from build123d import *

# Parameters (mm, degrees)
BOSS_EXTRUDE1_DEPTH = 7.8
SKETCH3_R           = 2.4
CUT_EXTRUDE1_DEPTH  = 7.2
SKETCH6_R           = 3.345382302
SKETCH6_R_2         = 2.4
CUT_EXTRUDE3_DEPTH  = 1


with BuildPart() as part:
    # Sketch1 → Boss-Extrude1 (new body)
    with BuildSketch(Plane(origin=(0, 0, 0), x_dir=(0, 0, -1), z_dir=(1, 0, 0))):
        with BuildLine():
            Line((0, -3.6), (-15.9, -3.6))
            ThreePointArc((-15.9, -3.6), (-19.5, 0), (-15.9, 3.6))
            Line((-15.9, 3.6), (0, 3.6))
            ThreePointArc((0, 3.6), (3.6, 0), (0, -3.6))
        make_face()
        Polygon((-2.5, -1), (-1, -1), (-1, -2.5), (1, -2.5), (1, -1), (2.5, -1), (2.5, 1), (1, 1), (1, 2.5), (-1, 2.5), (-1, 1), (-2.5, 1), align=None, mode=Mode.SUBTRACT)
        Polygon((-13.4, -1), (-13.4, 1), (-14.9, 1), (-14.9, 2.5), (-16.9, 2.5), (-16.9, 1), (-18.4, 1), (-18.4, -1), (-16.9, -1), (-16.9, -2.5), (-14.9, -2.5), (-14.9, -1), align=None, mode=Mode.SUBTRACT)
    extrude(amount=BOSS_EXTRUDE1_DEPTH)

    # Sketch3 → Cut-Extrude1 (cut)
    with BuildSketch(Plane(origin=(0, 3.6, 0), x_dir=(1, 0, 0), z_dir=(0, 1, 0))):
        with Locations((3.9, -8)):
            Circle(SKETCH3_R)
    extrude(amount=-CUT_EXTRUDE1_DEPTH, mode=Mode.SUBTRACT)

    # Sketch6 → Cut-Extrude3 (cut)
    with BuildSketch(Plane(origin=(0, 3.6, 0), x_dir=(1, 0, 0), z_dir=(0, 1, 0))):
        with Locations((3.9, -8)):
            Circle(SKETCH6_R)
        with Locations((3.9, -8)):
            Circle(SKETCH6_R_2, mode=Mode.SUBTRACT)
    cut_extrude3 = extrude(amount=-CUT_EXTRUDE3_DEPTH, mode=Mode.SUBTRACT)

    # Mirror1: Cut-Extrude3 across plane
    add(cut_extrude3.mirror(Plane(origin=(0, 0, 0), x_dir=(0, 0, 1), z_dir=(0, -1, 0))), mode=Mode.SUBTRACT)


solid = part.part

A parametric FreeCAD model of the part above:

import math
import FreeCAD as App
import Part
import Sketcher


def add_polygon(sketch, points):
    """Adds a closed chain of lines whose ends are joined by coincident constraints."""
    first, n = sketch.GeometryCount, len(points)
    for a, b in zip(points, points[1:] + points[:1]):
        sketch.addGeometry(Part.LineSegment(App.Vector(*a, 0), App.Vector(*b, 0)), False)
    for i in range(n):
        sketch.addConstraint(Sketcher.Constraint("Coincident", first + i, 2, first + (i + 1) % n, 1))

doc = App.newDocument("Part")
body = doc.addObject("PartDesign::Body", "Body")

# Sketch on YZ plane
sketch1 = body.newObject("Sketcher::SketchObject", "Sketch")
sketch1.AttachmentSupport = (doc.getObject("YZ_Plane"), [""])
sketch1.MapMode = "FlatFace"
sketch1.addGeometry(Part.LineSegment(App.Vector(-3.6, 15.9, 0), App.Vector(-3.6, 0, 0)), False)  # 0
sketch1.addGeometry(Part.ArcOfCircle(Part.Circle(App.Vector(0, 0, 0), App.Vector(0, 0, 1), 3.6), math.radians(180), math.radians(360)), False)  # 1
sketch1.addGeometry(Part.LineSegment(App.Vector(3.6, 0, 0), App.Vector(3.6, 15.9, 0)), False)  # 2
sketch1.addGeometry(Part.ArcOfCircle(Part.Circle(App.Vector(0, 15.9, 0), App.Vector(0, 0, 1), 3.6), math.radians(0), math.radians(180)), False)  # 3
add_polygon(sketch1, [(-1, 2.5), (1, 2.5), (1, 1), (2.5, 1), (2.5, -1), (1, -1), (1, -2.5), (-1, -2.5), (-1, -1), (-2.5, -1), (-2.5, 1), (-1, 1)])  # lines 4-15
add_polygon(sketch1, [(-1, 13.4), (-1, 14.9), (-2.5, 14.9), (-2.5, 16.9), (-1, 16.9), (-1, 18.4), (1, 18.4), (1, 16.9), (2.5, 16.9), (2.5, 14.9), (1, 14.9), (1, 13.4)])  # lines 16-27
sketch1.addConstraint(Sketcher.Constraint("Tangent", 0, 2, 1, 1))
sketch1.addConstraint(Sketcher.Constraint("Tangent", 1, 2, 2, 1))
sketch1.addConstraint(Sketcher.Constraint("Tangent", 2, 2, 3, 1))
sketch1.addConstraint(Sketcher.Constraint("Tangent", 3, 2, 0, 1))
sketch1.addConstraint(Sketcher.Constraint("Vertical", 0))
sketch1.addConstraint(Sketcher.Constraint("Vertical", 2))
sketch1.addConstraint(Sketcher.Constraint("Horizontal", 4))
sketch1.addConstraint(Sketcher.Constraint("Vertical", 5))
sketch1.addConstraint(Sketcher.Constraint("Horizontal", 6))
sketch1.addConstraint(Sketcher.Constraint("Vertical", 7))
sketch1.addConstraint(Sketcher.Constraint("Horizontal", 8))
sketch1.addConstraint(Sketcher.Constraint("Vertical", 9))
sketch1.addConstraint(Sketcher.Constraint("Horizontal", 10))
sketch1.addConstraint(Sketcher.Constraint("Vertical", 11))
sketch1.addConstraint(Sketcher.Constraint("Horizontal", 12))
sketch1.addConstraint(Sketcher.Constraint("Vertical", 13))
sketch1.addConstraint(Sketcher.Constraint("Horizontal", 14))
sketch1.addConstraint(Sketcher.Constraint("Vertical", 15))
sketch1.addConstraint(Sketcher.Constraint("Vertical", 16))
sketch1.addConstraint(Sketcher.Constraint("Horizontal", 17))
sketch1.addConstraint(Sketcher.Constraint("Vertical", 18))
sketch1.addConstraint(Sketcher.Constraint("Horizontal", 19))
sketch1.addConstraint(Sketcher.Constraint("Vertical", 20))
sketch1.addConstraint(Sketcher.Constraint("Horizontal", 21))
sketch1.addConstraint(Sketcher.Constraint("Vertical", 22))
sketch1.addConstraint(Sketcher.Constraint("Horizontal", 23))
sketch1.addConstraint(Sketcher.Constraint("Vertical", 24))
sketch1.addConstraint(Sketcher.Constraint("Horizontal", 25))
sketch1.addConstraint(Sketcher.Constraint("Vertical", 26))
sketch1.addConstraint(Sketcher.Constraint("Horizontal", 27))
sketch1.addConstraint(Sketcher.Constraint("Coincident", 1, 3, -1, 1))
sketch1.addConstraint(Sketcher.Constraint("Symmetric", 4, 2, 10, 2, -1, 1))
sketch1.addConstraint(Sketcher.Constraint("Symmetric", 6, 2, 12, 2, -1, 1))
sketch1.addConstraint(Sketcher.Constraint("Symmetric", 8, 2, 14, 2, -1, 1))
sketch1.addConstraint(Sketcher.Constraint("Symmetric", 8, 2, 11, 2, -2))
sketch1.addConstraint(Sketcher.Constraint("Symmetric", 19, 2, 22, 2, -2))
sketch1.addConstraint(Sketcher.Constraint("Symmetric", 17, 2, 24, 2, -2))
sketch1.addConstraint(Sketcher.Constraint("Vertical", 15, 2, 16, 2))
sketch1.addConstraint(Sketcher.Constraint("Vertical", 13, 2, 17, 2))
sketch1.addConstraint(Sketcher.Constraint("Vertical", 16, 2, 19, 2))
sketch1.addConstraint(Sketcher.Constraint("Vertical", 22, 2, 25, 2))
sketch1.addConstraint(Sketcher.Constraint("Equal", 25, 5))
sketch1.addConstraint(Sketcher.Constraint("Equal", 27, 7))
sketch1.addConstraint(Sketcher.Constraint("Equal", 15, 16))
sketch1.addConstraint(Sketcher.Constraint("Equal", 13, 18))
sketch1.addConstraint(Sketcher.Constraint("Equal", 16, 20))
sketch1.addConstraint(Sketcher.Constraint("Radius", 1, 3.6))
sketch1.addConstraint(Sketcher.Constraint("DistanceX", 4, 1, 4, 2, 2.0))
sketch1.addConstraint(Sketcher.Constraint("DistanceX", 6, 1, 6, 2, 1.5))
sketch1.addConstraint(Sketcher.Constraint("DistanceY", 0, 2, 0, 1, 15.9))
sketch1.addConstraint(Sketcher.Constraint("DistanceY", 16, 2, 3, 3, 1.0))
pad1 = body.newObject("PartDesign::Pad", "Pad")
pad1.Profile = sketch1
pad1.Length = 7.8

# Sketch on XZ plane
sketch2 = body.newObject("Sketcher::SketchObject", "Sketch001")
sketch2.AttachmentSupport = (doc.getObject("XZ_Plane"), [""])
sketch2.MapMode = "FlatFace"
sketch2.AttachmentOffset = App.Placement(App.Vector(0, 0, -3.6), App.Rotation())
sketch2.addGeometry(Part.Circle(App.Vector(3.9, 8, 0), App.Vector(0, 0, 1), 2.4), False)
sketch2.addConstraint(Sketcher.Constraint("Diameter", 0, 4.8))
sketch2.addConstraint(Sketcher.Constraint("DistanceY", -1, 1, 0, 3, 8.0))
sketch2.addConstraint(Sketcher.Constraint("DistanceX", -1, 1, 0, 3, 3.9))
pocket1 = body.newObject("PartDesign::Pocket", "Pocket")
pocket1.Profile = sketch2
pocket1.Length = 7.2
pocket1.Reversed = True

# Sketch on XZ plane
sketch3 = body.newObject("Sketcher::SketchObject", "Sketch002")
sketch3.AttachmentSupport = (doc.getObject("XZ_Plane"), [""])
sketch3.MapMode = "FlatFace"
sketch3.AttachmentOffset = App.Placement(App.Vector(0, 0, -3.6), App.Rotation())
sketch3.addGeometry(Part.Circle(App.Vector(3.9, 8, 0), App.Vector(0, 0, 1), 3.3), False)
sketch3.addGeometry(Part.Circle(App.Vector(3.9, 8, 0), App.Vector(0, 0, 1), 2.4), False)
sketch3.addConstraint(Sketcher.Constraint("Coincident", 1, 3, 0, 3))
sketch3.addConstraint(Sketcher.Constraint("Diameter", 1, 4.8))
sketch3.addConstraint(Sketcher.Constraint("DistanceY", -1, 1, 0, 3, 8.0))
sketch3.addConstraint(Sketcher.Constraint("DistanceX", -1, 1, 0, 3, 3.9))
sketch3.addConstraint(Sketcher.Constraint("Diameter", 0, 6.690765))
pocket2 = body.newObject("PartDesign::Pocket", "Pocket001")
pocket2.Profile = sketch3
pocket2.Length = 1
pocket2.Reversed = True
doc.recompute()

mirrored = body.newObject("PartDesign::Mirrored", "Mirrored")
mirrored.Originals = [pocket2]
mirrored.MirrorPlane = (doc.getObject("XZ_Plane"), [""])
body.Tip = mirrored

doc.recompute()
